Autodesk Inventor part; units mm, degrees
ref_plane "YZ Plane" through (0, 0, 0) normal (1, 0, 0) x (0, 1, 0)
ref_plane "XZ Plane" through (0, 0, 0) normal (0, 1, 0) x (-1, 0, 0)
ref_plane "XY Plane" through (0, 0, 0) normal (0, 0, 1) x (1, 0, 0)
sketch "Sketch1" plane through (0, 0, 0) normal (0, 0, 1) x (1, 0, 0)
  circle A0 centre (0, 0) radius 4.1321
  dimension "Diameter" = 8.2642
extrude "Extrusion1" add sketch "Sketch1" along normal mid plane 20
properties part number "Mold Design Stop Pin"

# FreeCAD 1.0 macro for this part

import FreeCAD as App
import Part
import Sketcher
from FreeCAD import Vector

doc = App.newDocument("Part")
body = doc.addObject("PartDesign::Body", "Body")

# Sketch on XY plane
sketch1 = body.newObject("Sketcher::SketchObject", "Sketch")
sketch1.AttachmentSupport = (doc.getObject("XY_Plane"), [""])
sketch1.MapMode = "FlatFace"
sketch1.addGeometry(Part.Circle(Vector(0, 0, 0), Vector(0, 0, 1), 4.1), False)
sketch1.addConstraint([
    Sketcher.Constraint("Coincident", 0, 3, -1, 1),
    Sketcher.Constraint("Diameter", 0, 8.2642),
])
pad1 = body.newObject("PartDesign::Pad", "Pad")
pad1.Profile = sketch1
pad1.Length = 20
pad1.Midplane = True

doc.recompute()
